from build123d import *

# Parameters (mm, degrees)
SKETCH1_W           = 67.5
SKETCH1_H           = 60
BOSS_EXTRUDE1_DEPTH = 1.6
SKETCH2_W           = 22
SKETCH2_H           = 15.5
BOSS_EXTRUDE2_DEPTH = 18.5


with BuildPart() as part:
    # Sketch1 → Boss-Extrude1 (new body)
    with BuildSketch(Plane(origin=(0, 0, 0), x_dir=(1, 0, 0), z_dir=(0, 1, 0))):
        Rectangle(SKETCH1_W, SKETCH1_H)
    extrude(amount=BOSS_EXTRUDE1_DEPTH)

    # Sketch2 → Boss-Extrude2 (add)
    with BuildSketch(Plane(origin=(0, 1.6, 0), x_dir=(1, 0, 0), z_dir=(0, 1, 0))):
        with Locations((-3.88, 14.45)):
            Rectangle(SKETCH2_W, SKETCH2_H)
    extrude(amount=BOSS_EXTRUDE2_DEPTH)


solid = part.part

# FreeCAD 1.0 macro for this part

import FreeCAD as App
import Part
import Sketcher
from FreeCAD import Vector
Q = App.Units.Quantity


def add_polygon(sketch, points):
    """Adds a closed chain of lines whose ends are joined by coincident constraints."""
    first, n = sketch.GeometryCount, len(points)
    for a, b in zip(points, points[1:] + points[:1]):
        sketch.addGeometry(Part.LineSegment(App.Vector(*a, 0), App.Vector(*b, 0)), False)
    for i in range(n):
        sketch.addConstraint(Sketcher.Constraint("Coincident", first + i, 2, first + (i + 1) % n, 1))

doc = App.newDocument("Part")
body = doc.addObject("PartDesign::Body", "Body")

sketch1 = doc.addObject("Sketcher::SketchObject", "Sketch")
body.addObject(sketch1)
sketch1.AttachmentSupport = (doc.XZ_Plane, [""])
sketch1.MapMode = "FlatFace"
add_polygon(sketch1, [(-33.75, -30), (-33.75, 30), (33.75, 30), (33.75, -30)])
sketch1.addConstraint(Sketcher.Constraint("Vertical", 0))
sketch1.addConstraint(Sketcher.Constraint("Horizontal", 1))
sketch1.addConstraint(Sketcher.Constraint("Vertical", 2))
sketch1.addConstraint(Sketcher.Constraint("Horizontal", 3))
sketch1.addConstraint(Sketcher.Constraint("Symmetric", 0, 2, 2, 2, -1, 1))
sketch1.addConstraint(Sketcher.Constraint("DistanceY", 0, 1, 0, 2, Q("60 mm")))
sketch1.addConstraint(Sketcher.Constraint("DistanceX", 1, 1, 1, 2, Q("67.5 mm")))
pad1 = doc.addObject("PartDesign::Pad", "Pad")
body.addObject(pad1)
pad1.Profile = sketch1
pad1.Length = 1.6
pad1.Reversed = True

sketch2 = doc.addObject("Sketcher::SketchObject", "Sketch001")
body.addObject(sketch2)
sketch2.AttachmentSupport = (doc.XZ_Plane, [""])
sketch2.MapMode = "FlatFace"
sketch2.AttachmentOffset = App.Placement(Vector(0, 0, -1.6), App.Rotation())
add_polygon(sketch2, [(-14.88, -22.2), (-14.88, -6.7), (7.12, -6.7), (7.12, -22.2)])
sketch2.addConstraint(Sketcher.Constraint("Vertical", 0))
sketch2.addConstraint(Sketcher.Constraint("Horizontal", 1))
sketch2.addConstraint(Sketcher.Constraint("Vertical", 2))
sketch2.addConstraint(Sketcher.Constraint("Horizontal", 3))
sketch2.addConstraint(Sketcher.Constraint("DistanceX", 1, 1, 1, 2, Q("22 mm")))
sketch2.addConstraint(Sketcher.Constraint("DistanceY", 0, 1, 0, 2, Q("15.5 mm")))
sketch2.addConstraint(Sketcher.Constraint("DistanceY", 0, 2, -1, 1, Q("6.7 mm")))
sketch2.addConstraint(Sketcher.Constraint("DistanceX", 0, 2, -1, 1, Q("14.88 mm")))
pad2 = doc.addObject("PartDesign::Pad", "Pad001")
body.addObject(pad2)
pad2.Profile = sketch2
pad2.Length = 18.5
pad2.Reversed = True

doc.recompute()
